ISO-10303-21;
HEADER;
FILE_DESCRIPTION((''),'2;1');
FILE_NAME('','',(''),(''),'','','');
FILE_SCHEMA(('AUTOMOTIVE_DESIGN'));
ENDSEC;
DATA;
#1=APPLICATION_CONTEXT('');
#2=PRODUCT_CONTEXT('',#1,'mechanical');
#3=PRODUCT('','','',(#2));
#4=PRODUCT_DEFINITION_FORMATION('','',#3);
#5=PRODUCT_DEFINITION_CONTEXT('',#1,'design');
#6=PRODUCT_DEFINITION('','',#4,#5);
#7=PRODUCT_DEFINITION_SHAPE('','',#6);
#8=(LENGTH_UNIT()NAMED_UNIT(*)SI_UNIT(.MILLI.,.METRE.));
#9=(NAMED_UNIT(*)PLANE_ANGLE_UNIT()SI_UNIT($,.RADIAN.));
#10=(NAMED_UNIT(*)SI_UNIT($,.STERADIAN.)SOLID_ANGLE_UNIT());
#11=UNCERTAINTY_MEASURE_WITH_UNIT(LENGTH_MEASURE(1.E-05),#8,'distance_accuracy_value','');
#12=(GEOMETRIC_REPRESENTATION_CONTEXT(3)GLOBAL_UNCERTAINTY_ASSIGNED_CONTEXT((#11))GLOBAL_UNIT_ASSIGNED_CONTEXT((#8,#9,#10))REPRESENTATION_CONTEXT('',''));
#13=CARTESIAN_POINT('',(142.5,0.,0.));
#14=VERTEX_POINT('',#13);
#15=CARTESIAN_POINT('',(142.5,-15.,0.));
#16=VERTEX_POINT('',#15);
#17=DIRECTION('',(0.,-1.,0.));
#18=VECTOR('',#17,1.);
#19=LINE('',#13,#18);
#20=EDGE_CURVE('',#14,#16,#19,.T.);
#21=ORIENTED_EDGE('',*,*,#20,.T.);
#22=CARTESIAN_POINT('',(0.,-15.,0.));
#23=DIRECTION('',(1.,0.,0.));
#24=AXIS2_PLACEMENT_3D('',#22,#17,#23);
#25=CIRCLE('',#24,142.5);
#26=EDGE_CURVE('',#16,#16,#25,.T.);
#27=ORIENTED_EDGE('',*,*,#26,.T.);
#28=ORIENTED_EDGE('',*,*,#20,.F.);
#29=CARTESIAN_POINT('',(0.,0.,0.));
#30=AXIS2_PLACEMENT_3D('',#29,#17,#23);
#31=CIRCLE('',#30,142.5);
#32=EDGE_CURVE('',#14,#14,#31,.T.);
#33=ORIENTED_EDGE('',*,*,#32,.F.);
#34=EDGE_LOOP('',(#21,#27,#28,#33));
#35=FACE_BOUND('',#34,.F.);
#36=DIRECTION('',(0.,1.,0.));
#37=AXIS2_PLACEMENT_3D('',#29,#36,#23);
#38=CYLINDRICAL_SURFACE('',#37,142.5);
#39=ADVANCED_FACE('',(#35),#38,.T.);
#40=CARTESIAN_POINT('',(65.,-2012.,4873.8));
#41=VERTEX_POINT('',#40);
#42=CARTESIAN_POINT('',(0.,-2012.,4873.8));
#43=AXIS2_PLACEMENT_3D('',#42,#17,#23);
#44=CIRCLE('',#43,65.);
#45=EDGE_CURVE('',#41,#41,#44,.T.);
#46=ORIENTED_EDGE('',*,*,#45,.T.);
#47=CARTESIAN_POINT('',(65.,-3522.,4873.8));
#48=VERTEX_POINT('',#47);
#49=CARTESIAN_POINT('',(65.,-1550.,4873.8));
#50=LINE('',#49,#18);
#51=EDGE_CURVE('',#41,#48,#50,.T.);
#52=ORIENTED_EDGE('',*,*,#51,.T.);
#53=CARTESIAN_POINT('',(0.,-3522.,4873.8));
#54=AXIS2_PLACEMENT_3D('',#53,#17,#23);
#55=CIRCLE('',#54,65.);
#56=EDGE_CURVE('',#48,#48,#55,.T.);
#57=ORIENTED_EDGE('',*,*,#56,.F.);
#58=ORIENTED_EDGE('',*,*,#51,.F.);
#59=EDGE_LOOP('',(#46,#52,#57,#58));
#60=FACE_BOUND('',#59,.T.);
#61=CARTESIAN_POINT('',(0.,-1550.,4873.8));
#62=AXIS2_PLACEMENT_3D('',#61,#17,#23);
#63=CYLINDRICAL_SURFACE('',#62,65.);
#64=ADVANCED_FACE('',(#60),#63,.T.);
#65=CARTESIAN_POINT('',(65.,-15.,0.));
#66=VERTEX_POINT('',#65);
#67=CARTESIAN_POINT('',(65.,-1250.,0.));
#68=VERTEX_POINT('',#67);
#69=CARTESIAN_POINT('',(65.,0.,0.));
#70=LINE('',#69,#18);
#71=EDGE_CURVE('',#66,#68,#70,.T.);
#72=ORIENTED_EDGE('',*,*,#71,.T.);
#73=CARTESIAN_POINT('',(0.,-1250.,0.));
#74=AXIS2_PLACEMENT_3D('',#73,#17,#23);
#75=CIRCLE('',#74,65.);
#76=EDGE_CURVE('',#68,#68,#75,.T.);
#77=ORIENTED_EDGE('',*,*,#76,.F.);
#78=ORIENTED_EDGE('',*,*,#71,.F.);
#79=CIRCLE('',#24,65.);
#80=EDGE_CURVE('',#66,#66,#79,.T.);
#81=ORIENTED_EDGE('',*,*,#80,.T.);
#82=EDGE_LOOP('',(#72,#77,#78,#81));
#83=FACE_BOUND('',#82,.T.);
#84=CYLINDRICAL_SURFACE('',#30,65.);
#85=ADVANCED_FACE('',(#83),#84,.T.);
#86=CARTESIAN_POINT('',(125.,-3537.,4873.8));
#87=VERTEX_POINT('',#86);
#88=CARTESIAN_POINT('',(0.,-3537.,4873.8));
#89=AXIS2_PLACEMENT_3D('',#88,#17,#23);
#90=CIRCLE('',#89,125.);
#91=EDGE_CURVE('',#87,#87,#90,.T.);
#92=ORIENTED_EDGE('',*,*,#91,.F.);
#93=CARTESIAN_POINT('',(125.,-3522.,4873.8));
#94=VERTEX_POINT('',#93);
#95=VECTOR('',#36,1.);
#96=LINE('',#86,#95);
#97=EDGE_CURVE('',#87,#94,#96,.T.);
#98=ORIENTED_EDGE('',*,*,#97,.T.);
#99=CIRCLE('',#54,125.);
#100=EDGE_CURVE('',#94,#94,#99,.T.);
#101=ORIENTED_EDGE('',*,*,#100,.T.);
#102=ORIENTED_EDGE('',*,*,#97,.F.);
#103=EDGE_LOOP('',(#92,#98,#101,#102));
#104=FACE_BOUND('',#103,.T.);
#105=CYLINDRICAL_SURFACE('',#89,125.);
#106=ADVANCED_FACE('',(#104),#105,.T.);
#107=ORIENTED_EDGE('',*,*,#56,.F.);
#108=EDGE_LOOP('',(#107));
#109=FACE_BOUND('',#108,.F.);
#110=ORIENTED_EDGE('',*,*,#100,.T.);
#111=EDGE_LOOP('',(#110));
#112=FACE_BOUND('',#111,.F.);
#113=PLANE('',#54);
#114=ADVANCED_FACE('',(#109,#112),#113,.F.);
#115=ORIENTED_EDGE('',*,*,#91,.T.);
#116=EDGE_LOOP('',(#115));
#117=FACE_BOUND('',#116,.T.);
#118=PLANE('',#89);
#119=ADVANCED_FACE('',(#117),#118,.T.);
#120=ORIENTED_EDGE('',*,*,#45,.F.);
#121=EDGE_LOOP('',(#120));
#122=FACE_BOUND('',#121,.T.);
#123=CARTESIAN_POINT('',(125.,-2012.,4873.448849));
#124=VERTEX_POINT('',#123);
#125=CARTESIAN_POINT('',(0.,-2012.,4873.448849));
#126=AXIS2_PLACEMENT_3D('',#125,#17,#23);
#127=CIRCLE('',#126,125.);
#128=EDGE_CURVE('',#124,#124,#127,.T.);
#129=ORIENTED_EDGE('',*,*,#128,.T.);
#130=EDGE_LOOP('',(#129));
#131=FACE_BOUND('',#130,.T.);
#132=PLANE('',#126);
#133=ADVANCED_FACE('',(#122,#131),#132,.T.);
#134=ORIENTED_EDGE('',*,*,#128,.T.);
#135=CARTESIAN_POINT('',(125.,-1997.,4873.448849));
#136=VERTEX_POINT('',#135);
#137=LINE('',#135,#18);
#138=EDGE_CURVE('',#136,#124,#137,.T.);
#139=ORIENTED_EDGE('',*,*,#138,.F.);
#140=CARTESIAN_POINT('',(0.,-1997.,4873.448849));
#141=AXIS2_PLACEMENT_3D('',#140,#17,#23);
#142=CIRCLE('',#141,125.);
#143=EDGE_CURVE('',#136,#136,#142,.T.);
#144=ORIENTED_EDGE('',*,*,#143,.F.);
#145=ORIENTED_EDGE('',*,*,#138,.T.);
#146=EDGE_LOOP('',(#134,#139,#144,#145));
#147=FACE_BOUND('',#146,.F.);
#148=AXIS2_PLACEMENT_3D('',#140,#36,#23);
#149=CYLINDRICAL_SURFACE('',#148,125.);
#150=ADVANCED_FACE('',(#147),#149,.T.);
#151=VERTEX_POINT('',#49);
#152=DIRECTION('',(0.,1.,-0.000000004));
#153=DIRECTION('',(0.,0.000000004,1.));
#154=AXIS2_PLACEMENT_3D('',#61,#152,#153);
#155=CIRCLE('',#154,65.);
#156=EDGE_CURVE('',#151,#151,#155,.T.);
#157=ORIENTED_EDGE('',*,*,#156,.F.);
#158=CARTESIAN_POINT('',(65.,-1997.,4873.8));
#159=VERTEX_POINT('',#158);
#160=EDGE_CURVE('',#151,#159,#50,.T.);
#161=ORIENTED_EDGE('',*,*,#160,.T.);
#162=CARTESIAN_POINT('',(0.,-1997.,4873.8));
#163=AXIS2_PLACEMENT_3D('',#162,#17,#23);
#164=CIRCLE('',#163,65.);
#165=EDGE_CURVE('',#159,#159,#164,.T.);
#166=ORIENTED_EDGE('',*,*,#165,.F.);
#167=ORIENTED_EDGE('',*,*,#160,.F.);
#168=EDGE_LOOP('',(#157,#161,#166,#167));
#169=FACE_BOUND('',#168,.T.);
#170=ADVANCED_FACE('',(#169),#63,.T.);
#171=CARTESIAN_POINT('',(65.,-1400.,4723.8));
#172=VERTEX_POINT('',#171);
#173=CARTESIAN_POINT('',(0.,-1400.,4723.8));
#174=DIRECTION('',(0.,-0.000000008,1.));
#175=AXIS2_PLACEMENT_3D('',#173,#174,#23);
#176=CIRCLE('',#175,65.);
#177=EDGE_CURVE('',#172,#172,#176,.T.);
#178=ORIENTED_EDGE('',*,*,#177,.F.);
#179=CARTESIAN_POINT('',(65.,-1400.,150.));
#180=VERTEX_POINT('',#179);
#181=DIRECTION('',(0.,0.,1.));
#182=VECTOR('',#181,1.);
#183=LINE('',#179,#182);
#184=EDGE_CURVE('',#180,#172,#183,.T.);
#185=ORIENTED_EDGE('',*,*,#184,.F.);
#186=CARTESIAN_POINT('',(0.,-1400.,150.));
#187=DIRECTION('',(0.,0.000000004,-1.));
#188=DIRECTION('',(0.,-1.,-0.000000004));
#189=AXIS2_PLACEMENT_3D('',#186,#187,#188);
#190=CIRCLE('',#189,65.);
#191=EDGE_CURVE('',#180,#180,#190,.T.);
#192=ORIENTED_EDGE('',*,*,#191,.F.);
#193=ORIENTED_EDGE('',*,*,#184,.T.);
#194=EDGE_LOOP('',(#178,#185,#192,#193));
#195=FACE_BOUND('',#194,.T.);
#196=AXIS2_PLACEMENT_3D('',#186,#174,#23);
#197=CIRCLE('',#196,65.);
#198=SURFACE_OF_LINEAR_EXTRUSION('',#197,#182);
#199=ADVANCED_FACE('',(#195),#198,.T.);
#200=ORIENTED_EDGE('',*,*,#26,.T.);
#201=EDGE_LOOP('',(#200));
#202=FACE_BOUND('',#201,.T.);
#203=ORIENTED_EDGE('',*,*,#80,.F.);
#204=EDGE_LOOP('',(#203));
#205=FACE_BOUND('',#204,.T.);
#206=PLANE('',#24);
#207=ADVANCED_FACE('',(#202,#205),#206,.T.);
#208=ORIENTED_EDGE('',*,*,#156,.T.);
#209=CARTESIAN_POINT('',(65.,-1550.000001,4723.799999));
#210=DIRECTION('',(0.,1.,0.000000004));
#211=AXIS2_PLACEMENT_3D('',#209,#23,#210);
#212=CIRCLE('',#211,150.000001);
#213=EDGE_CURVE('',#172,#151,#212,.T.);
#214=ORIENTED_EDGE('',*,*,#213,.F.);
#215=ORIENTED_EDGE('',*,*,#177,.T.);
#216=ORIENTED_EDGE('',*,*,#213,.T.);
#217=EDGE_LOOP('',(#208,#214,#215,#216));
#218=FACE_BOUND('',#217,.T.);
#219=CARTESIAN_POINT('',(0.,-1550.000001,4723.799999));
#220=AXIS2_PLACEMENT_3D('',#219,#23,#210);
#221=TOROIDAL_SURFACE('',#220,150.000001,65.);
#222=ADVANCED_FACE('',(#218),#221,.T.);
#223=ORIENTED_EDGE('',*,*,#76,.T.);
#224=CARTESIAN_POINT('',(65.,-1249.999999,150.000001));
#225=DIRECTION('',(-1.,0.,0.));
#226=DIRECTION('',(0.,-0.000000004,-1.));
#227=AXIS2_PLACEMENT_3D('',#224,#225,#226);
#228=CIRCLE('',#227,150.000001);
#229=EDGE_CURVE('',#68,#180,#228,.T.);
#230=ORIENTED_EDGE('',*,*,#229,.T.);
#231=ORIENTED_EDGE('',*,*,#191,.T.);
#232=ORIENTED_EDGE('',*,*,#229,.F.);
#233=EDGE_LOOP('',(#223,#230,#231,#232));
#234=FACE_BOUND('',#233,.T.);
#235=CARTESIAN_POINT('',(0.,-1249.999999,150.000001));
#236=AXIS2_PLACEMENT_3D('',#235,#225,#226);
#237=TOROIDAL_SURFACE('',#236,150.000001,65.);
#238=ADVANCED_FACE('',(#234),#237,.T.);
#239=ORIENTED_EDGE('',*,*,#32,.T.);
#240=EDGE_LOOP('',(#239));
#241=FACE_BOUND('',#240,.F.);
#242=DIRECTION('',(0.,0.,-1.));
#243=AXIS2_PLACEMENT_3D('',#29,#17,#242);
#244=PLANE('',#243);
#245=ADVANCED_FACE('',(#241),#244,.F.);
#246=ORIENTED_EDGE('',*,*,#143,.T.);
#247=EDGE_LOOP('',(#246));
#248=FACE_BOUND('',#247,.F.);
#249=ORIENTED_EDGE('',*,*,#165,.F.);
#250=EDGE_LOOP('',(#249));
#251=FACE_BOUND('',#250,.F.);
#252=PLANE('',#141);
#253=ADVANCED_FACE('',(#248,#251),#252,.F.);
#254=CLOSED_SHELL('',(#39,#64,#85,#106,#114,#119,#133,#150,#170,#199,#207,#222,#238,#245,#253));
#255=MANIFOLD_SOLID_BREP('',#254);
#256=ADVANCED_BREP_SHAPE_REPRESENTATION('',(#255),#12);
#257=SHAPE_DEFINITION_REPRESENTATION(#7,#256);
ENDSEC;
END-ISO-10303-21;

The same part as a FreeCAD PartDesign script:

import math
import FreeCAD as App
import Part
import Sketcher
from FreeCAD import Vector
Q = App.Units.Quantity

doc = App.newDocument("Part")
params = doc.addObject("Spreadsheet::Sheet", "Params")
for row, (alias, value) in enumerate([
    ("sketch1_diameter", "285 mm"),
    ("pad1_length", "15 mm"),
    ("sketch2_diameter", "130 mm"),
    ("sketch3_radius", "150.000001 mm"),
    ("sketch3_width", "1250 mm"),
    ("sketch3_width2", "1987 mm"),
    ("sketch3_height", "4573.8 mm"),
    ("sketch4_diameter", "250 mm"),
    ("pad2_length", "15 mm"),
    ("sketch5_diameter", "250 mm"),
    ("pad3_length", "15 mm"),
], start=1):
    params.set(f"A{row}", alias)
    params.set(f"B{row}", "=" + value)
    params.setAlias(f"B{row}", alias)

body = doc.addObject("PartDesign::Body", "Body")

# Sketch on XZ plane
sketch1 = doc.addObject("Sketcher::SketchObject", "Sketch")
body.addObject(sketch1)
sketch1.AttachmentSupport = (doc.XZ_Plane, [""])
sketch1.MapMode = "FlatFace"
sketch1.addGeometry(Part.Circle(Vector(0, 0, 0), Vector(0, 0, 1), 142), False)
sketch1.addConstraint([
    Sketcher.Constraint("Coincident", 0, 3, -1, 1),
    Sketcher.Constraint("Diameter", 0, Q("285 mm")),
])
sketch1.setExpression("Constraints[1]", "Params.sketch1_diameter")
pad1 = doc.addObject("PartDesign::Pad", "Pad")
body.addObject(pad1)
pad1.Profile = sketch1
pad1.setExpression("Length", "Params.pad1_length")

# Sketch on XZ plane
sketch2 = doc.addObject("Sketcher::SketchObject", "Sketch001")
body.addObject(sketch2)
sketch2.AttachmentSupport = (doc.XZ_Plane, [""])
sketch2.MapMode = "FlatFace"
sketch2.addGeometry(Part.Circle(Vector(0, 0, 0), Vector(0, 0, 1), 65), False)
sketch2.addConstraint([
    Sketcher.Constraint("Coincident", 0, 3, -1, 1),
    Sketcher.Constraint("Diameter", 0, Q("130 mm")),
])
sketch2.setExpression("Constraints[1]", "Params.sketch2_diameter")

# Sketch on YZ plane
sketch3 = doc.addObject("Sketcher::SketchObject", "Sketch002")
body.addObject(sketch3)
sketch3.AttachmentSupport = (doc.YZ_Plane, [""])
sketch3.MapMode = "FlatFace"
sketch3.addGeometry([
    Part.LineSegment(Vector(0, 0, 0), Vector(-1250, 0, 0)),  # 0
    Part.ArcOfCircle(Part.Circle(Vector(-1250, 150, 0), Vector(0, 0, 1), 150), math.radians(-180), math.radians(-90)),  # 1
    Part.LineSegment(Vector(-1400, 150, 0), Vector(-1400, 4724, 0)),  # 2
    Part.ArcOfCircle(Part.Circle(Vector(-1550, 4724, 0), Vector(0, 0, 1), 150), math.radians(0), math.radians(90)),  # 3
    Part.LineSegment(Vector(-1550, 4874, 0), Vector(-3537, 4874, 0)),  # 4
], False)
sketch3.addConstraint([
    Sketcher.Constraint("Tangent", 0, 2, 1, 2),
    Sketcher.Constraint("Tangent", 1, 1, 2, 1),
    Sketcher.Constraint("Tangent", 2, 2, 3, 1),
    Sketcher.Constraint("Tangent", 3, 2, 4, 1),
    Sketcher.Constraint("Horizontal", 0),
    Sketcher.Constraint("Vertical", 2),
    Sketcher.Constraint("Horizontal", 4),
    Sketcher.Constraint("Coincident", 0, 1, -1, 1),
    Sketcher.Constraint("Equal", 1, 3),
    Sketcher.Constraint("Radius", 1, Q("150.000001 mm")),
    Sketcher.Constraint("DistanceX", 0, 2, 0, 1, Q("1250 mm")),
    Sketcher.Constraint("DistanceX", 4, 2, 4, 1, Q("1987 mm")),
    Sketcher.Constraint("DistanceY", 2, 1, 2, 2, Q("4573.8 mm")),
])
sketch3.setExpression("Constraints[9]", "Params.sketch3_radius")
sketch3.setExpression("Constraints[10]", "Params.sketch3_width")
sketch3.setExpression("Constraints[11]", "Params.sketch3_width2")
sketch3.setExpression("Constraints[12]", "Params.sketch3_height")
doc.recompute()

additivepipe = doc.addObject("PartDesign::AdditivePipe", "AdditivePipe")
body.addObject(additivepipe)
additivepipe.Profile = sketch2
additivepipe.Spine = (sketch3, ["Edge1", "Edge2", "Edge3", "Edge4", "Edge5"])

# Sketch on XZ plane
sketch4 = doc.addObject("Sketcher::SketchObject", "Sketch003")
body.addObject(sketch4)
sketch4.AttachmentSupport = (doc.XZ_Plane, [""])
sketch4.MapMode = "FlatFace"
sketch4.AttachmentOffset = App.Placement(Vector(0, 0, 3537), App.Rotation())
sketch4.addGeometry(Part.Circle(Vector(0, 4874, 0), Vector(0, 0, 1), 125), False)
sketch4.addConstraint([
    Sketcher.Constraint("PointOnObject", 0, 3, -2),
    Sketcher.Constraint("Diameter", 0, Q("250 mm")),
    Sketcher.Constraint("DistanceY", -1, 1, 0, 3, Q("4873.8 mm")),
])
sketch4.setExpression("Constraints[1]", "Params.sketch4_diameter")
pad2 = doc.addObject("PartDesign::Pad", "Pad001")
body.addObject(pad2)
pad2.Profile = sketch4
pad2.setExpression("Length", "Params.pad2_length")
pad2.Reversed = True

# Sketch on XZ plane
sketch5 = doc.addObject("Sketcher::SketchObject", "Sketch004")
body.addObject(sketch5)
sketch5.AttachmentSupport = (doc.XZ_Plane, [""])
sketch5.MapMode = "FlatFace"
sketch5.AttachmentOffset = App.Placement(Vector(0, 0, 1997), App.Rotation())
sketch5.addGeometry(Part.Circle(Vector(0, 4873, 0), Vector(0, 0, 1), 125), False)
sketch5.addConstraint([
    Sketcher.Constraint("PointOnObject", 0, 3, -2),
    Sketcher.Constraint("Diameter", 0, Q("250 mm")),
    Sketcher.Constraint("DistanceY", -1, 1, 0, 3, Q("4873.448849 mm")),
])
sketch5.setExpression("Constraints[1]", "Params.sketch5_diameter")
pad3 = doc.addObject("PartDesign::Pad", "Pad002")
body.addObject(pad3)
pad3.Profile = sketch5
pad3.setExpression("Length", "Params.pad3_length")

doc.recompute()
